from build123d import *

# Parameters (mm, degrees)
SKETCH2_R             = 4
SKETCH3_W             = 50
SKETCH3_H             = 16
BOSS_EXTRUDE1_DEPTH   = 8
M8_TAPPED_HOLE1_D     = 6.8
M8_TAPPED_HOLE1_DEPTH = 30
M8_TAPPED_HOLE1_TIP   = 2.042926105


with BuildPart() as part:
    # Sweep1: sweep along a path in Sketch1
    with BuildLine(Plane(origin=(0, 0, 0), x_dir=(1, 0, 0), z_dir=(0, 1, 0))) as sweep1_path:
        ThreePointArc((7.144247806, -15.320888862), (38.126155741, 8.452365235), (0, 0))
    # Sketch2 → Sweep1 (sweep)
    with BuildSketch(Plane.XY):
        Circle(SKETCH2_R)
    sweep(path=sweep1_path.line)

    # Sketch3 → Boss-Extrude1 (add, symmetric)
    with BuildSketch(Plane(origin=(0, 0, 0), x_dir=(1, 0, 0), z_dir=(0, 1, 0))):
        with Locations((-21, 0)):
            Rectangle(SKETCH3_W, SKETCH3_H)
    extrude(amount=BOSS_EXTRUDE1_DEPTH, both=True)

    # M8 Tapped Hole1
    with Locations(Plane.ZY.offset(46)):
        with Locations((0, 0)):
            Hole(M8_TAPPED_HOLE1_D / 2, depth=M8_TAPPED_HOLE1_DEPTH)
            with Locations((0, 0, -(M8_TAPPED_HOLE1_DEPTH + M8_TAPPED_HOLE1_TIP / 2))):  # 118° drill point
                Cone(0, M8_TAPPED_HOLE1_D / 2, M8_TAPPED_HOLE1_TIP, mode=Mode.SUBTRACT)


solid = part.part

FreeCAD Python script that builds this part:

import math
import FreeCAD as App
import Part
import Sketcher

V = App.Vector

doc = App.newDocument("Part")
body = doc.addObject("PartDesign::Body", "Body")

sketch1 = body.newObject("Sketcher::SketchObject", "Sketch")
sketch1.AttachmentSupport = (doc.getObject("XY_Plane"), [""])
sketch1.MapMode = "FlatFace"
sketch1.addGeometry(Part.Circle(V(0, 0, 0), V(0, 0, 1), 4), False)
sketch1.addConstraint(Sketcher.Constraint("Coincident", 0, 3, -1, 1))
sketch1.addConstraint(Sketcher.Constraint("Diameter", 0, 8.0))

sketch2 = body.newObject("Sketcher::SketchObject", "Sketch001")
sketch2.AttachmentSupport = (doc.getObject("XZ_Plane"), [""])
sketch2.MapMode = "FlatFace"
sketch2.addGeometry(Part.ArcOfCircle(Part.Circle(V(20, 0, 0), V(0, 0, 1), 20), math.radians(180), math.radians(490)), False)
sketch2.addConstraint(Sketcher.Constraint("Coincident", 0, 1, -1, 1))
sketch2.addConstraint(Sketcher.Constraint("PointOnObject", 0, 3, -1))
sketch2.addConstraint(Sketcher.Constraint("Radius", 0, 20.0))
sketch2.addConstraint(Sketcher.Constraint("DistanceY", -1, 1, 0, 2, 15.320889))
doc.recompute()

additivepipe = body.newObject("PartDesign::AdditivePipe", "AdditivePipe")
additivepipe.Profile = sketch1
additivepipe.Spine = (sketch2, ["Edge1"])

sketch3 = body.newObject("Sketcher::SketchObject", "Sketch002")
sketch3.AttachmentSupport = (doc.getObject("XZ_Plane"), [""])
sketch3.MapMode = "FlatFace"
sketch3.addGeometry(Part.LineSegment(V(-46, -8, 0), V(-46, 8, 0)), False)
sketch3.addGeometry(Part.LineSegment(V(-46, 8, 0), V(4, 8, 0)), False)
sketch3.addGeometry(Part.LineSegment(V(4, 8, 0), V(4, -8, 0)), False)
sketch3.addGeometry(Part.LineSegment(V(4, -8, 0), V(-46, -8, 0)), False)
sketch3.addConstraint(Sketcher.Constraint("Coincident", 0, 2, 1, 1))
sketch3.addConstraint(Sketcher.Constraint("Coincident", 1, 2, 2, 1))
sketch3.addConstraint(Sketcher.Constraint("Coincident", 2, 2, 3, 1))
sketch3.addConstraint(Sketcher.Constraint("Coincident", 3, 2, 0, 1))
sketch3.addConstraint(Sketcher.Constraint("Vertical", 0))
sketch3.addConstraint(Sketcher.Constraint("Horizontal", 1))
sketch3.addConstraint(Sketcher.Constraint("Vertical", 2))
sketch3.addConstraint(Sketcher.Constraint("Horizontal", 3))
sketch3.addConstraint(Sketcher.Constraint("DistanceX", 1, 1, 1, 2, 50.0))
sketch3.addConstraint(Sketcher.Constraint("DistanceY", 0, 1, 0, 2, 16.0))
sketch3.addConstraint(Sketcher.Constraint("DistanceX", 0, 2, -1, 1, 46.0))
sketch3.addConstraint(Sketcher.Constraint("DistanceY", -1, 1, 0, 2, 8.0))
pad1 = body.newObject("PartDesign::Pad", "Pad")
pad1.Profile = sketch3
pad1.Length = 16
pad1.Midplane = True

sketch4 = body.newObject("Sketcher::SketchObject", "Sketch003")
sketch4.AttachmentSupport = (doc.getObject("YZ_Plane"), [""])
sketch4.MapMode = "FlatFace"
sketch4.AttachmentOffset = App.Placement(V(0, 0, -46), App.Rotation())
sketch4.addGeometry(Part.Circle(V(0, 0, 0), V(0, 0, 1), 3.4), False)
sketch4.addConstraint(Sketcher.Constraint("Coincident", 0, 3, -1, 1))
sketch4.addConstraint(Sketcher.Constraint("Diameter", 0, 6.8))
doc.recompute()
hole = body.newObject("PartDesign::Hole", "Hole")
hole.Profile = sketch4
hole.ThreadType = "None"
hole.Diameter = 6.8
hole.DepthType = "Dimension"
hole.Depth = 30
hole.DrillPoint = "Angled"
hole.DrillPointAngle = 118
hole.Reversed = True

doc.recompute()
